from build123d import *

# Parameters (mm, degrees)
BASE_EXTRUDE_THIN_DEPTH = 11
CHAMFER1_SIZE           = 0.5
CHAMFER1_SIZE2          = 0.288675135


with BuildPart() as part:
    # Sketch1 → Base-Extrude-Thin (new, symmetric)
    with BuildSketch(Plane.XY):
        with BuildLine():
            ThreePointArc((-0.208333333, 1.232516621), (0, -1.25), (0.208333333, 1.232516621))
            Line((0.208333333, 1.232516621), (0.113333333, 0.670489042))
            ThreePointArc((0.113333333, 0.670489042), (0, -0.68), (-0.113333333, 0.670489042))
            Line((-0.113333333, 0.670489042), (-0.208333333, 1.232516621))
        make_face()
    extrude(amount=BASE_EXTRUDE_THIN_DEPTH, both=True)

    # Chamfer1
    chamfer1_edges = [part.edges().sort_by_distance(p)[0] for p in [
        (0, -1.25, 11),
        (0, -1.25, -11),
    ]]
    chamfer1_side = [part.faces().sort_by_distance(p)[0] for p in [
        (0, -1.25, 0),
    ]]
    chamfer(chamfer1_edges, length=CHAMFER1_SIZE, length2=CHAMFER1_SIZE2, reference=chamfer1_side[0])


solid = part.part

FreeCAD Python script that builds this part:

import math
import FreeCAD as App
import Part
import Sketcher
Q = App.Units.Quantity


def edges_at(feature, points):
    """Names of the edges that pass closest to the given points."""
    edges = feature.Shape.Edges
    near = lambda p: min(range(len(edges)), key=lambda i: edges[i].distToShape(Part.Vertex(*p))[0])
    return sorted({f"Edge{near(p) + 1}" for p in points})

doc = App.newDocument("Part")
body = doc.addObject("PartDesign::Body", "Body")

# Sketch on XY plane
sketch1 = doc.addObject("Sketcher::SketchObject", "Sketch")
body.addObject(sketch1)
sketch1.AttachmentSupport = (doc.XY_Plane, [""])
sketch1.MapMode = "FlatFace"
sketch1.addGeometry(Part.ArcOfCircle(Part.Circle(App.Vector(0, 0, 0), App.Vector(0, 0, 1), 1.25), math.radians(99.594068), math.radians(440.405932)), False)
sketch1.addGeometry(Part.LineSegment(App.Vector(0.208333, 1.232517, 0), App.Vector(0.113333, 0.670489, 0)), False)
sketch1.addGeometry(Part.ArcOfCircle(Part.Circle(App.Vector(0, 0, 0), App.Vector(0, 0, 1), 0.68), math.radians(99.594068), math.radians(440.405932)), False)
sketch1.addGeometry(Part.LineSegment(App.Vector(-0.113333, 0.670489, 0), App.Vector(-0.208333, 1.232517, 0)), False)
sketch1.addConstraint(Sketcher.Constraint("Coincident", 0, 2, 1, 1))
sketch1.addConstraint(Sketcher.Constraint("Coincident", 1, 2, 2, 2))
sketch1.addConstraint(Sketcher.Constraint("Coincident", 2, 1, 3, 1))
sketch1.addConstraint(Sketcher.Constraint("Coincident", 3, 2, 0, 1))
sketch1.addConstraint(Sketcher.Constraint("Coincident", 0, 3, -1, 1))
sketch1.addConstraint(Sketcher.Constraint("Coincident", 2, 3, -1, 1))
sketch1.addConstraint(Sketcher.Constraint("Horizontal", 1, 2, 2, 1))
sketch1.addConstraint(Sketcher.Constraint("Horizontal", 0, 2, 3, 2))
sketch1.addConstraint(Sketcher.Constraint("Radius", 0, Q("1.25 mm")))
sketch1.addConstraint(Sketcher.Constraint("Radius", 2, Q("0.68 mm")))
sketch1.addConstraint(Sketcher.Constraint("DistanceX", 1, 2, 0, 2, Q("0.095 mm")))
sketch1.addConstraint(Sketcher.Constraint("DistanceY", -1, 1, 1, 2, Q("0.670489 mm")))
pad1 = doc.addObject("PartDesign::Pad", "Pad")
body.addObject(pad1)
pad1.Profile = sketch1
pad1.Length = 22
pad1.Midplane = True
doc.recompute()

chamfer = doc.addObject("PartDesign::Chamfer", "Chamfer")
body.addObject(chamfer)
chamfer.Base = (pad1, edges_at(pad1, [(0, -1.25, 11), (0, -1.25, -11)]))
chamfer.ChamferType = "Two distances"
chamfer.Size = 0.5
chamfer.Size2 = 0.288675

doc.recompute()
